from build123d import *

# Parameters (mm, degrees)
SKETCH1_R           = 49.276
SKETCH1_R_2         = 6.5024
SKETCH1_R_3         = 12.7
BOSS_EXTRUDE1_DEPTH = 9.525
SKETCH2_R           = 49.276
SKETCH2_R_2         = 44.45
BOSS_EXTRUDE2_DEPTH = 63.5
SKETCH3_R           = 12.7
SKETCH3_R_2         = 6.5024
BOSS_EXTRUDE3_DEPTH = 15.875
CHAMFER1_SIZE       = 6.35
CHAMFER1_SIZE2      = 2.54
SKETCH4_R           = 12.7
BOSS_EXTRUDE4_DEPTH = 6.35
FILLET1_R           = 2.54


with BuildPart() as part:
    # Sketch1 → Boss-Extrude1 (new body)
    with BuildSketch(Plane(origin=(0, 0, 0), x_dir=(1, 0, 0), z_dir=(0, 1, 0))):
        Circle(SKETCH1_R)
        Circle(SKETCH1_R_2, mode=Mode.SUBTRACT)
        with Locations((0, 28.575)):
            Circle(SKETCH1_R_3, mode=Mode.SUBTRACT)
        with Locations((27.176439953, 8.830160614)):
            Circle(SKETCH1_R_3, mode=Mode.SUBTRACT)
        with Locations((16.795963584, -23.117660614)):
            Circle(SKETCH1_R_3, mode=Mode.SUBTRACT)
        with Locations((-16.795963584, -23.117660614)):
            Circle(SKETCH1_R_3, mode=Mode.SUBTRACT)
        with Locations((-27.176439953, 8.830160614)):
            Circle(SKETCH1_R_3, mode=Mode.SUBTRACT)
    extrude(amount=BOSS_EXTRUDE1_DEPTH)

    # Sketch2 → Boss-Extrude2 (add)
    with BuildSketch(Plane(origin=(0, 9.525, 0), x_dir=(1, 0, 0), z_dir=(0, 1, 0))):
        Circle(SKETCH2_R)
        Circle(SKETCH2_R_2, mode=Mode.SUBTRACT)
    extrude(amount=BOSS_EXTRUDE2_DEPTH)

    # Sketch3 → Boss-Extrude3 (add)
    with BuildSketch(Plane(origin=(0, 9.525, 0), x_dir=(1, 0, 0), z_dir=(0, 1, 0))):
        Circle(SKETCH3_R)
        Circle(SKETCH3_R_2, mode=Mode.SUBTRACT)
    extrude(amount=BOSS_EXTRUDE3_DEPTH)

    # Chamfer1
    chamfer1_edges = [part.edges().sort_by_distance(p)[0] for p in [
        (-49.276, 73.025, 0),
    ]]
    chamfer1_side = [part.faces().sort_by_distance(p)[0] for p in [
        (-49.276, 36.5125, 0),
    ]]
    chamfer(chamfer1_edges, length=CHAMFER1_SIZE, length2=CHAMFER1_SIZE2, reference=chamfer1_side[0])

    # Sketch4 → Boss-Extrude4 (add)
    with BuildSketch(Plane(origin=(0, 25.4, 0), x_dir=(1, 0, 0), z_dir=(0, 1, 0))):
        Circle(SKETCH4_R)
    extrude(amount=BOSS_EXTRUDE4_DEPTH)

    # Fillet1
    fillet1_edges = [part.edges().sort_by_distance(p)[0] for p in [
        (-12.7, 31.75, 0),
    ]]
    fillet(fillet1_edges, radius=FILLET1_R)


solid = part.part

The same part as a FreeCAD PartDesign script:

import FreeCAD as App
import Part
import Sketcher

V = App.Vector
Q = App.Units.Quantity


def edges_at(feature, points):
    """Names of the edges that pass closest to the given points."""
    edges = feature.Shape.Edges
    near = lambda p: min(range(len(edges)), key=lambda i: edges[i].distToShape(Part.Vertex(*p))[0])
    return sorted({f"Edge{near(p) + 1}" for p in points})

doc = App.newDocument("Part")
body = doc.addObject("PartDesign::Body", "Body")

sketch1 = doc.addObject("Sketcher::SketchObject", "Sketch")
body.addObject(sketch1)
sketch1.AttachmentSupport = (doc.XZ_Plane, [""])
sketch1.MapMode = "FlatFace"
sketch1.addGeometry([
    Part.Circle(V(0, 0, 0), V(0, 0, 1), 49.276),
    Part.Circle(V(-16.795964, 23.117661, 0), V(0, 0, 1), 12.7),
    Part.Circle(V(16.795964, 23.117661, 0), V(0, 0, 1), 12.7),
    Part.Circle(V(0, 0, 0), V(0, 0, 1), 6.5024),
    Part.Circle(V(-27.17644, -8.830161, 0), V(0, 0, 1), 12.7),
    Part.Circle(V(27.17644, -8.830161, 0), V(0, 0, 1), 12.7),
    Part.Circle(V(0, -28.575, 0), V(0, 0, 1), 12.7),
], False)
sketch1.addConstraint([
    Sketcher.Constraint("Coincident", 0, 3, -1, 1),
    Sketcher.Constraint("Coincident", 3, 3, -1, 1),
    Sketcher.Constraint("Equal", 1, 2),
    Sketcher.Constraint("Equal", 2, 4),
    Sketcher.Constraint("Equal", 4, 5),
    Sketcher.Constraint("Equal", 5, 6),
    Sketcher.Constraint("Symmetric", 1, 3, 2, 3, -2),
    Sketcher.Constraint("Symmetric", 4, 3, 5, 3, -2),
    Sketcher.Constraint("PointOnObject", 6, 3, -2),
    Sketcher.Constraint("Diameter", 1, Q("1 in")),
    Sketcher.Constraint("Diameter", 0, Q("3.88 in")),
    Sketcher.Constraint("Diameter", 3, Q("0.512 in")),
    Sketcher.Constraint("DistanceY", 6, 3, -1, 1, Q("1.125 in")),
    Sketcher.Constraint("DistanceY", -1, 1, 1, 3, 23.117661),
    Sketcher.Constraint("DistanceX", 4, 3, -1, 1, 27.17644),
    Sketcher.Constraint("DistanceY", 4, 3, -1, 1, 8.830161),
    Sketcher.Constraint("DistanceX", 1, 3, -1, 1, 16.795964),
])
pad1 = doc.addObject("PartDesign::Pad", "Pad")
body.addObject(pad1)
pad1.Profile = sketch1
pad1.Length = Q("0.375 in")
pad1.Reversed = True

sketch2 = doc.addObject("Sketcher::SketchObject", "Sketch001")
body.addObject(sketch2)
sketch2.AttachmentSupport = (doc.XZ_Plane, [""])
sketch2.MapMode = "FlatFace"
sketch2.AttachmentOffset = App.Placement(V(0, 0, -0.375 * 25.4), App.Rotation())
sketch2.addGeometry([
    Part.Circle(V(0, 0, 0), V(0, 0, 1), 49.276),
    Part.Circle(V(0, 0, 0), V(0, 0, 1), 44.45),
], False)
sketch2.addConstraint([
    Sketcher.Constraint("Coincident", 0, 3, -1, 1),
    Sketcher.Constraint("Coincident", 1, 3, -1, 1),
    Sketcher.Constraint("Diameter", 1, Q("3.5 in")),
    Sketcher.Constraint("Diameter", 0, Q("3.88 in")),
])
pad2 = doc.addObject("PartDesign::Pad", "Pad001")
body.addObject(pad2)
pad2.Profile = sketch2
pad2.Length = Q("2.5 in")
pad2.Reversed = True

sketch3 = doc.addObject("Sketcher::SketchObject", "Sketch002")
body.addObject(sketch3)
sketch3.AttachmentSupport = (doc.XZ_Plane, [""])
sketch3.MapMode = "FlatFace"
sketch3.AttachmentOffset = App.Placement(V(0, 0, -0.375 * 25.4), App.Rotation())
sketch3.addGeometry([
    Part.Circle(V(0, 0, 0), V(0, 0, 1), 12.7),
    Part.Circle(V(0, 0, 0), V(0, 0, 1), 6.5024),
], False)
sketch3.addConstraint([
    Sketcher.Constraint("Coincident", 0, 3, -1, 1),
    Sketcher.Constraint("Coincident", 1, 3, -1, 1),
    Sketcher.Constraint("Diameter", 0, Q("1 in")),
    Sketcher.Constraint("Diameter", 1, Q("0.512 in")),
])
pad3 = doc.addObject("PartDesign::Pad", "Pad002")
body.addObject(pad3)
pad3.Profile = sketch3
pad3.Length = Q("0.625 in")
pad3.Reversed = True
doc.recompute()

chamfer = doc.addObject("PartDesign::Chamfer", "Chamfer")
body.addObject(chamfer)
chamfer.Base = (pad3, edges_at(pad3, [(-49.276, 73.025, 0)]))
chamfer.ChamferType = "Two distances"
chamfer.Size = Q("0.25 in")
chamfer.Size2 = Q("0.1 in")

sketch4 = doc.addObject("Sketcher::SketchObject", "Sketch003")
body.addObject(sketch4)
sketch4.AttachmentSupport = (doc.XZ_Plane, [""])
sketch4.MapMode = "FlatFace"
sketch4.AttachmentOffset = App.Placement(V(0, 0, -1 * 25.4), App.Rotation())
sketch4.addGeometry(Part.Circle(V(0, 0, 0), V(0, 0, 1), 12.7), False)
sketch4.addConstraint([
    Sketcher.Constraint("Coincident", 0, 3, -1, 1),
    Sketcher.Constraint("Diameter", 0, Q("1 in")),
])
pad4 = doc.addObject("PartDesign::Pad", "Pad003")
body.addObject(pad4)
pad4.Profile = sketch4
pad4.Length = Q("0.25 in")
pad4.Reversed = True
doc.recompute()

fillet = doc.addObject("PartDesign::Fillet", "Fillet")
body.addObject(fillet)
fillet.Base = (pad4, edges_at(pad4, [(-12.7, 31.75, 0)]))
fillet.Radius = Q("0.1 in")

doc.recompute()
